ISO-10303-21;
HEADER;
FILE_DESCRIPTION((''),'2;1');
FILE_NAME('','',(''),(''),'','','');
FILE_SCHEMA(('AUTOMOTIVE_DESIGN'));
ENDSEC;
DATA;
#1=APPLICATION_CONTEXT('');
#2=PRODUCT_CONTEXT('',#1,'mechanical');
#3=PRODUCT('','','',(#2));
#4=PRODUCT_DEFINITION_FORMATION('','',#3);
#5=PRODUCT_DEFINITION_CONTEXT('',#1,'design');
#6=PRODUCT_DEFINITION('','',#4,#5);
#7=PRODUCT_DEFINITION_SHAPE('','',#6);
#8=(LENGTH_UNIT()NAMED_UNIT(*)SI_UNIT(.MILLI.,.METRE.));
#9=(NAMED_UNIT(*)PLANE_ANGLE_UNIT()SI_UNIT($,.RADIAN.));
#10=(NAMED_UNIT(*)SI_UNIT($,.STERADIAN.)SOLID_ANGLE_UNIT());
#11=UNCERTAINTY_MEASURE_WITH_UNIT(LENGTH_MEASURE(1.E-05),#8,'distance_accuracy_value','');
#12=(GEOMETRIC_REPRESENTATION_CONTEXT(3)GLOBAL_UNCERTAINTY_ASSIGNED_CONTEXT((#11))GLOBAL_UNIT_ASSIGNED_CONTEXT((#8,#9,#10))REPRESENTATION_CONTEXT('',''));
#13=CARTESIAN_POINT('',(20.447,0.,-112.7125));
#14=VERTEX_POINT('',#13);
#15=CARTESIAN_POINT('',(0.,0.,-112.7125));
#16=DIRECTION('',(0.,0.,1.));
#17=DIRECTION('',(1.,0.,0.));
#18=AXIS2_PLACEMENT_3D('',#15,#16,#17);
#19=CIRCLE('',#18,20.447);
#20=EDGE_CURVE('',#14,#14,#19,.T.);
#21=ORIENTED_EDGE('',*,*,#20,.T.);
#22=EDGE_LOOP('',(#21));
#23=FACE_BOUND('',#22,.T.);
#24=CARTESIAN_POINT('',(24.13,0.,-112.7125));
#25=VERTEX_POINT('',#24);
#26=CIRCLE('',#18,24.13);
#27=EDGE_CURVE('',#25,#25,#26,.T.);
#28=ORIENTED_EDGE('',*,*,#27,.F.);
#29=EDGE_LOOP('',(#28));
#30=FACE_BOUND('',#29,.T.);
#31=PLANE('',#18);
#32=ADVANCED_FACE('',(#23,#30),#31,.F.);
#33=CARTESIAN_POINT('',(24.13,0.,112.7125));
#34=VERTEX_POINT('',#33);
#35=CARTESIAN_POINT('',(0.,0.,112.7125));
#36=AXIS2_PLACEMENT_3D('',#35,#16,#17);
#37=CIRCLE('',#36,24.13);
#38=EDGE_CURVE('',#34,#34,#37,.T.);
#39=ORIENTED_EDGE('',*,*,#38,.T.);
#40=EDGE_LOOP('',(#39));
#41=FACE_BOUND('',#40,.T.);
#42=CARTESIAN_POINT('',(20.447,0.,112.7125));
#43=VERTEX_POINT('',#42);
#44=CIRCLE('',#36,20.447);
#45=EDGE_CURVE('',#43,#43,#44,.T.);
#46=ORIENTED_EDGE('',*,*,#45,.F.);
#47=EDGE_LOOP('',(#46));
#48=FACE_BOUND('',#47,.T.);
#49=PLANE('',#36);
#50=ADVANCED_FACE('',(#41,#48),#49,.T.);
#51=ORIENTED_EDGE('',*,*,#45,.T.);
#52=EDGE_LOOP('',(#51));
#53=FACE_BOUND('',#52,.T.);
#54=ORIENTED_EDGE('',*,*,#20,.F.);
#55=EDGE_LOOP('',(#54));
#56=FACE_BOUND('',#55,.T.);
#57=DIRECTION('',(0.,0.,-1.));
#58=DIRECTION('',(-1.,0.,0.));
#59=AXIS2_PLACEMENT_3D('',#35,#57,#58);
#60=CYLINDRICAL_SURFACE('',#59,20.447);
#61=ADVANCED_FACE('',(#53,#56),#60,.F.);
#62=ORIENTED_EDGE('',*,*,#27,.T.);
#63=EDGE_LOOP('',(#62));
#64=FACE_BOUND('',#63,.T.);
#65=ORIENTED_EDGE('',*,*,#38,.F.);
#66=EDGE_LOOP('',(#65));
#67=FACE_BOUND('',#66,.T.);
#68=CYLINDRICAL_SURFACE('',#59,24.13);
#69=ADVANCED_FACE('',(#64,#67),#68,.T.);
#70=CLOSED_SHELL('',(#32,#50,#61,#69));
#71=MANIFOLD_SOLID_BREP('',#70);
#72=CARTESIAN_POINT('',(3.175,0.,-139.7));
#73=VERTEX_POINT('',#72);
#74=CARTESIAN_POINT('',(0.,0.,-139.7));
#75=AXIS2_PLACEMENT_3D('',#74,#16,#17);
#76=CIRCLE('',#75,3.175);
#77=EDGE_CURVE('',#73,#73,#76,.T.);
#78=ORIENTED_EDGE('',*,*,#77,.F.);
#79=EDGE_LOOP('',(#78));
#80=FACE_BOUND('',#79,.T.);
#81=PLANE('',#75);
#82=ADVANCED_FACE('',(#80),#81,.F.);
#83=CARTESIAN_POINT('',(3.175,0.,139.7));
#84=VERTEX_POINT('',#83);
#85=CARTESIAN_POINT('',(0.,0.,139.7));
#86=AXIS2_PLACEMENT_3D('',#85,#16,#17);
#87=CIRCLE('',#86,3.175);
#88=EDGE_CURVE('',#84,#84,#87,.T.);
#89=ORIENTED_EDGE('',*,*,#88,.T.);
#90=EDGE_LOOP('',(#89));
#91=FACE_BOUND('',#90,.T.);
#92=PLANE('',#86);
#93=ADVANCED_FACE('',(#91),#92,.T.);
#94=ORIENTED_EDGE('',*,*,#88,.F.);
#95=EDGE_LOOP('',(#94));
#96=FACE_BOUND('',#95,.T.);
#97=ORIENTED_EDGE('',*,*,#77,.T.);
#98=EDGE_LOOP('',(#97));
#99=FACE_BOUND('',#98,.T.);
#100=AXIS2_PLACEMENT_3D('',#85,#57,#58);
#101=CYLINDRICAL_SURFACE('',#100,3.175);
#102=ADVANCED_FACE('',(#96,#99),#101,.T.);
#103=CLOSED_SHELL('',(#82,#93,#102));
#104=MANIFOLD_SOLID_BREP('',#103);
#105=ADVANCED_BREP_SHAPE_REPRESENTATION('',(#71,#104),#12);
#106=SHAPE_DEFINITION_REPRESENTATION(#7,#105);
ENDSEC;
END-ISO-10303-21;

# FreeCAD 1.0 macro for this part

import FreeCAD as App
import Part
import Sketcher
Q = App.Units.Quantity

doc = App.newDocument("Part")
params = doc.addObject("Spreadsheet::Sheet", "Params")
for row, (alias, value) in enumerate([
    ("sketch1_diameter", "0.25 in"),
    ("pad1_length", "11 in"),
    ("sketch2_diameter", "1.9 in"),
    ("sketch2_diameter2", "1.61 in"),
    ("pad2_length", "8.875 in"),
], start=1):
    params.set(f"A{row}", alias)
    params.set(f"B{row}", "=" + value)
    params.setAlias(f"B{row}", alias)

body = doc.addObject("PartDesign::Body", "Body")

# Sketch on XY plane
sketch1 = doc.addObject("Sketcher::SketchObject", "Sketch")
body.addObject(sketch1)
sketch1.AttachmentSupport = (doc.XY_Plane, [""])
sketch1.MapMode = "FlatFace"
sketch1.addGeometry(Part.Circle(App.Vector(0, 0, 0), App.Vector(0, 0, 1), 3.2), False)
sketch1.addConstraint(Sketcher.Constraint("Coincident", 0, 3, -1, 1))
sketch1.addConstraint(Sketcher.Constraint("Diameter", 0, Q("0.25 in")))
sketch1.setExpression("Constraints[1]", "Params.sketch1_diameter")
pad1 = doc.addObject("PartDesign::Pad", "Pad")
body.addObject(pad1)
pad1.Profile = sketch1
pad1.setExpression("Length", "Params.pad1_length")
pad1.Midplane = True
body2 = doc.addObject("PartDesign::Body", "Body001")

# Sketch on XY plane
sketch2 = doc.addObject("Sketcher::SketchObject", "Sketch001")
body2.addObject(sketch2)
sketch2.AttachmentSupport = (doc.getObject("XY_Plane001"), [""])
sketch2.MapMode = "FlatFace"
sketch2.addGeometry(Part.Circle(App.Vector(0, 0, 0), App.Vector(0, 0, 1), 24), False)
sketch2.addGeometry(Part.Circle(App.Vector(0, 0, 0), App.Vector(0, 0, 1), 20), False)
sketch2.addConstraint(Sketcher.Constraint("Coincident", 0, 3, -1, 1))
sketch2.addConstraint(Sketcher.Constraint("Coincident", 1, 3, -1, 1))
sketch2.addConstraint(Sketcher.Constraint("Diameter", 0, Q("1.9 in")))
sketch2.addConstraint(Sketcher.Constraint("Diameter", 1, Q("1.61 in")))
sketch2.setExpression("Constraints[2]", "Params.sketch2_diameter")
sketch2.setExpression("Constraints[3]", "Params.sketch2_diameter2")
pad2 = doc.addObject("PartDesign::Pad", "Pad001")
body2.addObject(pad2)
pad2.Profile = sketch2
pad2.setExpression("Length", "Params.pad2_length")
pad2.Midplane = True

doc.recompute()
